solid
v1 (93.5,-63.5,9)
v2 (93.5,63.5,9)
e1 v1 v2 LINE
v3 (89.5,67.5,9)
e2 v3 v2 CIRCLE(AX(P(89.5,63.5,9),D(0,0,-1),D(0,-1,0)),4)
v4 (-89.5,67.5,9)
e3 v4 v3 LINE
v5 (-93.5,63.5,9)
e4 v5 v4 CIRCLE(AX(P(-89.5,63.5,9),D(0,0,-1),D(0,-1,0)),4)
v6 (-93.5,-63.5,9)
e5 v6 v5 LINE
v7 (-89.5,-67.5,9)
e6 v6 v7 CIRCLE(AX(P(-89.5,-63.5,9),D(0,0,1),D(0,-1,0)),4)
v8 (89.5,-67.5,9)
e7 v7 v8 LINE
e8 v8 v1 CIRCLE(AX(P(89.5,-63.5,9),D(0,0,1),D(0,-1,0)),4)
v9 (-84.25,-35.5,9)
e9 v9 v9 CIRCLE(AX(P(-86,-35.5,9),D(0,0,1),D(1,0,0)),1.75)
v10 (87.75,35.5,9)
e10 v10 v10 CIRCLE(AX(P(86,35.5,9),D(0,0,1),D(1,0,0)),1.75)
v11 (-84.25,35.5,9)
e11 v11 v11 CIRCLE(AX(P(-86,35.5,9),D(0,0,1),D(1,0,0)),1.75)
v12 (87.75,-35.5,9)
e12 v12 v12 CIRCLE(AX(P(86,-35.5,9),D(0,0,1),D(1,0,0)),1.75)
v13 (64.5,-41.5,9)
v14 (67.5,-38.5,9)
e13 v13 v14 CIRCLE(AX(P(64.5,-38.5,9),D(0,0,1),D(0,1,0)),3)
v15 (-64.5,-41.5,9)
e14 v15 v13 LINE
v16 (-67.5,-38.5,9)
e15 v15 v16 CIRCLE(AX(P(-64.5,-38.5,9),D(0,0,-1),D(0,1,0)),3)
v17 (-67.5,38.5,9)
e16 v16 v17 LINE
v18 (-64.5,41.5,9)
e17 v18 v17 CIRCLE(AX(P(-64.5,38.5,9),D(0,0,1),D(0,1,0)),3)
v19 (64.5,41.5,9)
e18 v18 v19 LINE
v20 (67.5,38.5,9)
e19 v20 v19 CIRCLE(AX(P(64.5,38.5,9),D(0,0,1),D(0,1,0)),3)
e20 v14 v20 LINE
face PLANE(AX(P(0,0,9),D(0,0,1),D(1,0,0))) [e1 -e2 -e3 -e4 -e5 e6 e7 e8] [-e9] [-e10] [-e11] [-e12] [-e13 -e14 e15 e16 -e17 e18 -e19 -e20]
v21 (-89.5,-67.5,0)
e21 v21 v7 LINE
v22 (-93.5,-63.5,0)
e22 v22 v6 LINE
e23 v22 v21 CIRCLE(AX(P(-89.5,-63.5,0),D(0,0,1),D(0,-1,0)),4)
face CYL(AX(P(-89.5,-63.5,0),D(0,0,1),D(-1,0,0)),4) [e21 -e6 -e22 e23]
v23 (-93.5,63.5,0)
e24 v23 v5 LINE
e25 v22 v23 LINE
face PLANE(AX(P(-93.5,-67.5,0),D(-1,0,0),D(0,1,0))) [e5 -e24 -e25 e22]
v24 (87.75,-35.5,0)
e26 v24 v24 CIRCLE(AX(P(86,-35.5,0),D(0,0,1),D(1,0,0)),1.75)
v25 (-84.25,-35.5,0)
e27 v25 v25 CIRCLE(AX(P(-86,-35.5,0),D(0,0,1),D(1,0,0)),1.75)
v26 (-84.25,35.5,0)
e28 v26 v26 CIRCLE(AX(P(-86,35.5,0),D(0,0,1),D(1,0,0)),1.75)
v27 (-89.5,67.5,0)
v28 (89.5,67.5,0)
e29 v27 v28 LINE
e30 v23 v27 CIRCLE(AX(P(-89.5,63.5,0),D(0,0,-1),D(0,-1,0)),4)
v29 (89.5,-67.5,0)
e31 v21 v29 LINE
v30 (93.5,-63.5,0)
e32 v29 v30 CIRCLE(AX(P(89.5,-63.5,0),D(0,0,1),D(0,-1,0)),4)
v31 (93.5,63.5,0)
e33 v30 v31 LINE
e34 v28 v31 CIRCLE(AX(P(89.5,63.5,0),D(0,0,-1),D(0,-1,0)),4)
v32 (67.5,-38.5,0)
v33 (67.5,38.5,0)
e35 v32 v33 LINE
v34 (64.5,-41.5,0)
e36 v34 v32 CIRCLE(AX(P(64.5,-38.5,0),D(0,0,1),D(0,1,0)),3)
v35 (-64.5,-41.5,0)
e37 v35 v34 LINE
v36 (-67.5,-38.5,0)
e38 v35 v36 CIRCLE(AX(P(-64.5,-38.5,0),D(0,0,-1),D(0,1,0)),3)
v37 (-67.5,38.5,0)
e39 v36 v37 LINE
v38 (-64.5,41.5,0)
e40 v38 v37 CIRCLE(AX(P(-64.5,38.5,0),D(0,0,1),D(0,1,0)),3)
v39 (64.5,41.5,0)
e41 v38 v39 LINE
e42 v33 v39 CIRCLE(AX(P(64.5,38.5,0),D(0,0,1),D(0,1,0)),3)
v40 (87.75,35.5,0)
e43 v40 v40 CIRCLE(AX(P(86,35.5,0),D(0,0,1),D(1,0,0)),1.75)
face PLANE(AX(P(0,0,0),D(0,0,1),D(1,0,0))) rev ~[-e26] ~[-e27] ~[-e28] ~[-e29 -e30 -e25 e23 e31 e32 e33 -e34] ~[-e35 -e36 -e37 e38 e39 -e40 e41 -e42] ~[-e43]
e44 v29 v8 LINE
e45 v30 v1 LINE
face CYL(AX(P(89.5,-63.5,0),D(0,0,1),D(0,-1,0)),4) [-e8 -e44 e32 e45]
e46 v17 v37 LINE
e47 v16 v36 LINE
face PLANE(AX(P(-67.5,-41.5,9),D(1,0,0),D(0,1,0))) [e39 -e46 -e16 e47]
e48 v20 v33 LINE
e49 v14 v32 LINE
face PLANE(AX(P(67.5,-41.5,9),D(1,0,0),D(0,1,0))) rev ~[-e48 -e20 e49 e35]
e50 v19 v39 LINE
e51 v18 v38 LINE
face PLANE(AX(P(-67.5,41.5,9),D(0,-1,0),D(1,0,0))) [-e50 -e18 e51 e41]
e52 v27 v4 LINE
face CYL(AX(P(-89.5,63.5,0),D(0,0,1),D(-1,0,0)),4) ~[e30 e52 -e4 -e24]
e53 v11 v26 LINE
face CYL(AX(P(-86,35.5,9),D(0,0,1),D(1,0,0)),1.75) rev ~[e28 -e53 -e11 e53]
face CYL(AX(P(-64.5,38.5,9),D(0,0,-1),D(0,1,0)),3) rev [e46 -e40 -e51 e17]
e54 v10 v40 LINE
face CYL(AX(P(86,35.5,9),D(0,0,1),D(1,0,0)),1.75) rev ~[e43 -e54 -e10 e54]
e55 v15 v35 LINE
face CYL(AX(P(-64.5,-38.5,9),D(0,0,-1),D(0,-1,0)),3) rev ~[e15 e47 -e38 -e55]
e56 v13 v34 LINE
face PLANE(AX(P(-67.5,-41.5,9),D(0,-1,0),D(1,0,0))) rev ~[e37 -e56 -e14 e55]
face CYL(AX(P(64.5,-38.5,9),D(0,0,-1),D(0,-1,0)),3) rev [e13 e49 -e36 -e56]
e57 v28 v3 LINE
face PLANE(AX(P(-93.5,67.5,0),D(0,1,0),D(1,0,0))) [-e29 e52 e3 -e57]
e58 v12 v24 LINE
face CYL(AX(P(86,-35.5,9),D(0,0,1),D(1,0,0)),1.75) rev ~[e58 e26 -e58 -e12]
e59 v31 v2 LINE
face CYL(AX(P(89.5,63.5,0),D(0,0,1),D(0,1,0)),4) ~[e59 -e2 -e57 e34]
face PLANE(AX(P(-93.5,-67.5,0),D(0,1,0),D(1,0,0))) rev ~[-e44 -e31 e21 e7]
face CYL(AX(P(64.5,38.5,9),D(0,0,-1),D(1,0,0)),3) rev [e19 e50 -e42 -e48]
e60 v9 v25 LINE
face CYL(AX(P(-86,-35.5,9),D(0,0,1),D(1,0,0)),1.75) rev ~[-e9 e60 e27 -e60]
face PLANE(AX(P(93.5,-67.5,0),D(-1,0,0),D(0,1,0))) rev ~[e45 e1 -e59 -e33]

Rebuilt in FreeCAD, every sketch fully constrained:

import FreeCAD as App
import Part
import Sketcher

V = App.Vector
Q = App.Units.Quantity


def edges_at(feature, points):
    """Names of the edges that pass closest to the given points."""
    edges = feature.Shape.Edges
    near = lambda p: min(range(len(edges)), key=lambda i: edges[i].distToShape(Part.Vertex(*p))[0])
    return sorted({f"Edge{near(p) + 1}" for p in points})

doc = App.newDocument("Part")
body = doc.addObject("PartDesign::Body", "Body")

# Sketch on XY plane
sketch1 = doc.addObject("Sketcher::SketchObject", "Sketch")
body.addObject(sketch1)
sketch1.AttachmentSupport = (doc.XY_Plane, [""])
sketch1.MapMode = "FlatFace"
sketch1.addGeometry([
    Part.LineSegment(V(-94, 68, 0), V(-94, -68, 0)),
    Part.LineSegment(V(-94, -68, 0), V(94, -68, 0)),
    Part.LineSegment(V(94, -68, 0), V(94, 68, 0)),
    Part.LineSegment(V(94, 68, 0), V(-94, 68, 0)),
], False)
sketch1.addConstraint([
    Sketcher.Constraint("Coincident", 0, 2, 1, 1),
    Sketcher.Constraint("Coincident", 1, 2, 2, 1),
    Sketcher.Constraint("Coincident", 2, 2, 3, 1),
    Sketcher.Constraint("Coincident", 3, 2, 0, 1),
    Sketcher.Constraint("Vertical", 0),
    Sketcher.Constraint("Horizontal", 1),
    Sketcher.Constraint("Vertical", 2),
    Sketcher.Constraint("Horizontal", 3),
    Sketcher.Constraint("Symmetric", 0, 2, 2, 2, -1, 1),
    Sketcher.Constraint("DistanceX", 1, 1, 1, 2, Q("187 mm")),
    Sketcher.Constraint("DistanceY", 0, 2, 0, 1, Q("135 mm")),
])
pad1 = doc.addObject("PartDesign::Pad", "Pad")
body.addObject(pad1)
pad1.Profile = sketch1
pad1.Length = 9

# Sketch on XY plane
sketch2 = doc.addObject("Sketcher::SketchObject", "Sketch001")
body.addObject(sketch2)
sketch2.AttachmentSupport = (doc.XY_Plane, [""])
sketch2.MapMode = "FlatFace"
sketch2.AttachmentOffset = App.Placement(V(0, 0, 9), App.Rotation())
sketch2.addGeometry([
    Part.Circle(V(-86, 35.5, 0), V(0, 0, 1), 1.8),
    Part.Circle(V(86, 35.5, 0), V(0, 0, 1), 1.8),
    Part.Circle(V(-86, -35.5, 0), V(0, 0, 1), 1.8),
    Part.Circle(V(86, -35.5, 0), V(0, 0, 1), 1.8),
], False)
sketch2.addConstraint([
    Sketcher.Constraint("Equal", 0, 1),
    Sketcher.Constraint("Equal", 1, 2),
    Sketcher.Constraint("Equal", 2, 3),
    Sketcher.Constraint("Symmetric", 1, 3, 2, 3, -1, 1),
    Sketcher.Constraint("Symmetric", 0, 3, 3, 3, -1, 1),
    Sketcher.Constraint("Symmetric", 0, 3, 1, 3, -2),
    Sketcher.Constraint("Diameter", 0, Q("3.5 mm")),
    Sketcher.Constraint("DistanceX", 0, 3, -1, 1, Q("86 mm")),
    Sketcher.Constraint("DistanceY", 2, 3, 0, 3, Q("71 mm")),
])
pocket1 = doc.addObject("PartDesign::Pocket", "Pocket")
body.addObject(pocket1)
pocket1.Profile = sketch2
pocket1.Type = "ThroughAll"
doc.recompute()

fillet = doc.addObject("PartDesign::Fillet", "Fillet")
body.addObject(fillet)
fillet.Base = (pocket1, edges_at(pocket1, [
    (-93.5, 67.5, 4.5),
    (-93.5, -67.5, 4.5),
    (93.5, -67.5, 4.5),
    (93.5, 67.5, 4.5),
]))
fillet.Radius = 4

# Sketch on XY plane
sketch3 = doc.addObject("Sketcher::SketchObject", "Sketch002")
body.addObject(sketch3)
sketch3.AttachmentSupport = (doc.XY_Plane, [""])
sketch3.MapMode = "FlatFace"
sketch3.AttachmentOffset = App.Placement(V(0, 0, 9), App.Rotation())
sketch3.addGeometry([
    Part.LineSegment(V(-68, 42, 0), V(-68, -42, 0)),
    Part.LineSegment(V(-68, -42, 0), V(68, -42, 0)),
    Part.LineSegment(V(68, -42, 0), V(68, 42, 0)),
    Part.LineSegment(V(68, 42, 0), V(-68, 42, 0)),
], False)
sketch3.addConstraint([
    Sketcher.Constraint("Coincident", 0, 2, 1, 1),
    Sketcher.Constraint("Coincident", 1, 2, 2, 1),
    Sketcher.Constraint("Coincident", 2, 2, 3, 1),
    Sketcher.Constraint("Coincident", 3, 2, 0, 1),
    Sketcher.Constraint("Vertical", 0),
    Sketcher.Constraint("Horizontal", 1),
    Sketcher.Constraint("Vertical", 2),
    Sketcher.Constraint("Horizontal", 3),
    Sketcher.Constraint("Symmetric", 0, 2, 2, 2, -1, 1),
    Sketcher.Constraint("DistanceX", 1, 1, 1, 2, Q("135 mm")),
    Sketcher.Constraint("DistanceY", 0, 2, 0, 1, Q("83 mm")),
])
pocket2 = doc.addObject("PartDesign::Pocket", "Pocket001")
body.addObject(pocket2)
pocket2.Profile = sketch3
pocket2.Type = "ThroughAll"
doc.recompute()

fillet2 = doc.addObject("PartDesign::Fillet", "Fillet001")
body.addObject(fillet2)
fillet2.Base = (pocket2, edges_at(pocket2, [
    (-67.5, 41.5, 4.5),
    (-67.5, -41.5, 4.5),
    (67.5, -41.5, 4.5),
    (67.5, 41.5, 4.5),
]))
fillet2.Radius = 3

doc.recompute()
